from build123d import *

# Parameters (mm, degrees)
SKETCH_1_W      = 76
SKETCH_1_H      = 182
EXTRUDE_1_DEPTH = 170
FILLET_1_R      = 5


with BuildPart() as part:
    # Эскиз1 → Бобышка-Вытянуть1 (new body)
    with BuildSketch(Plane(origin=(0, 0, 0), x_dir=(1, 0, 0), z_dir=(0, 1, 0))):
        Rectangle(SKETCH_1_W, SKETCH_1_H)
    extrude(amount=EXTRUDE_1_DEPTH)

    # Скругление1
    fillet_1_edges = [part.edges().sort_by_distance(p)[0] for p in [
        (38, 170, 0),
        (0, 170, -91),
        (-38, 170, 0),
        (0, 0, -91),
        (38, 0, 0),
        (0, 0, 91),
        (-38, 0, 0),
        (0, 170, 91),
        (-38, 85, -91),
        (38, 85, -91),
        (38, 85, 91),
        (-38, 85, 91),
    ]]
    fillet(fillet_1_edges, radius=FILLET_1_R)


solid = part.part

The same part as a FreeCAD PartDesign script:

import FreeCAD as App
import Part
import Sketcher

V = App.Vector

doc = App.newDocument("Part")
body = doc.addObject("PartDesign::Body", "Body")

sketch1 = body.newObject("Sketcher::SketchObject", "Sketch")
sketch1.AttachmentSupport = (doc.getObject("XZ_Plane"), [""])
sketch1.MapMode = "FlatFace"
sketch1.addGeometry(Part.LineSegment(V(-38, -91, 0), V(-38, 91, 0)), False)
sketch1.addGeometry(Part.LineSegment(V(-38, 91, 0), V(38, 91, 0)), False)
sketch1.addGeometry(Part.LineSegment(V(38, 91, 0), V(38, -91, 0)), False)
sketch1.addGeometry(Part.LineSegment(V(38, -91, 0), V(-38, -91, 0)), False)
sketch1.addConstraint(Sketcher.Constraint("Coincident", 0, 2, 1, 1))
sketch1.addConstraint(Sketcher.Constraint("Coincident", 1, 2, 2, 1))
sketch1.addConstraint(Sketcher.Constraint("Coincident", 2, 2, 3, 1))
sketch1.addConstraint(Sketcher.Constraint("Coincident", 3, 2, 0, 1))
sketch1.addConstraint(Sketcher.Constraint("Vertical", 0))
sketch1.addConstraint(Sketcher.Constraint("Horizontal", 1))
sketch1.addConstraint(Sketcher.Constraint("Vertical", 2))
sketch1.addConstraint(Sketcher.Constraint("Horizontal", 3))
sketch1.addConstraint(Sketcher.Constraint("Symmetric", 0, 2, 2, 2, -1, 1))
sketch1.addConstraint(Sketcher.Constraint("DistanceX", 1, 1, 1, 2, 76.0))
sketch1.addConstraint(Sketcher.Constraint("DistanceY", 0, 1, 0, 2, 182.0))
pad1 = body.newObject("PartDesign::Pad", "Pad")
pad1.Profile = sketch1
pad1.Length = 170
pad1.Reversed = True
doc.recompute()

fillet = body.newObject("PartDesign::Fillet", "Fillet")
fillet.Base = (pad1, ["Edge1"])
fillet.UseAllEdges = True
fillet.Radius = 5

doc.recompute()
